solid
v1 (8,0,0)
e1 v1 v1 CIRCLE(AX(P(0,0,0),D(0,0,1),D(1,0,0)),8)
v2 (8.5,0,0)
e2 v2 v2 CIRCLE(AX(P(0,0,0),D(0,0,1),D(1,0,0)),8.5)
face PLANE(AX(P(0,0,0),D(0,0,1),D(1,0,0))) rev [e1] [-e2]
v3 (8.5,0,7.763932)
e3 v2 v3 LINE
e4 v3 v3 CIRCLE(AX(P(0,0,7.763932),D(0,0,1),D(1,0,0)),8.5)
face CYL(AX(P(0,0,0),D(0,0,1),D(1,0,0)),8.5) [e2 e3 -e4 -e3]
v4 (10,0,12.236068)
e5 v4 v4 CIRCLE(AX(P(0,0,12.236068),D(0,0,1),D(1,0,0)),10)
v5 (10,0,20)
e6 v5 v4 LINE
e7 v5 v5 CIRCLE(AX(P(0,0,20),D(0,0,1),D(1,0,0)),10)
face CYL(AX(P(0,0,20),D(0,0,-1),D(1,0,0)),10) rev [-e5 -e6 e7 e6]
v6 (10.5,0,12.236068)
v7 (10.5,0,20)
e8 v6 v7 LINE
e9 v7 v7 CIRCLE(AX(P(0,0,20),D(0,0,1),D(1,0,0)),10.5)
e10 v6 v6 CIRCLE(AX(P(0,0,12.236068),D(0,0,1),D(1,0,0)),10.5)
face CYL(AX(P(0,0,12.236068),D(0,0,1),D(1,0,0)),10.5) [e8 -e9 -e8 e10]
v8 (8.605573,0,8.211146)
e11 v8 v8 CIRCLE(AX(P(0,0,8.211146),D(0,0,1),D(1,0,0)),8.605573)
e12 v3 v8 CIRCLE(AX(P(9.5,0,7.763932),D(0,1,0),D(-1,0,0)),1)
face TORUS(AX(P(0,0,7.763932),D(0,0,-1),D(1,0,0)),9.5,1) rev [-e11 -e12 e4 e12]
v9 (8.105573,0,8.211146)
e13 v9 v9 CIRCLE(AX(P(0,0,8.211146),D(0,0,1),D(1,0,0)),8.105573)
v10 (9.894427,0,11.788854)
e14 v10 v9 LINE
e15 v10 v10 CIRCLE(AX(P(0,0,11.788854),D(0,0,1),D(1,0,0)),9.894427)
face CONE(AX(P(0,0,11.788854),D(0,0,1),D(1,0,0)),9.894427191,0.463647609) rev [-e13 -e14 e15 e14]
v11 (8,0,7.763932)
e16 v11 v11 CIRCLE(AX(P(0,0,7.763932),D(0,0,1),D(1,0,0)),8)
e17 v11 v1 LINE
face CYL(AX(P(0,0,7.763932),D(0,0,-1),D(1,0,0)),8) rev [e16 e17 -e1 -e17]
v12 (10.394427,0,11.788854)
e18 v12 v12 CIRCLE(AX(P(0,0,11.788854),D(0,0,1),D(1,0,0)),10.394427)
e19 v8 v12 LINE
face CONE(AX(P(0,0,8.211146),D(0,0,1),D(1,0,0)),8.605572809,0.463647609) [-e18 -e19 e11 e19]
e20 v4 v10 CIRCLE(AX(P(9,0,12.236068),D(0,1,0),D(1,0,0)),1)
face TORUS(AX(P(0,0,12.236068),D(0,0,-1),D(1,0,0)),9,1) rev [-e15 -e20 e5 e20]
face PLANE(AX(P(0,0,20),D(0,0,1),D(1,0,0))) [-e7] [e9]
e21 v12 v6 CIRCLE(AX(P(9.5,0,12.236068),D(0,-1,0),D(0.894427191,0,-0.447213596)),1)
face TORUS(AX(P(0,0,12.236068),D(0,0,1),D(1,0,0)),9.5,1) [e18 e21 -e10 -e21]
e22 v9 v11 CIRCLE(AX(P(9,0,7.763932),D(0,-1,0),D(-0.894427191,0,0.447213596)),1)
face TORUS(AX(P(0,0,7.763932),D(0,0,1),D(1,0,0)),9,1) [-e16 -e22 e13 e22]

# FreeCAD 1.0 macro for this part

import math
import FreeCAD as App
import Part
import Sketcher
from FreeCAD import Vector
Q = App.Units.Quantity

doc = App.newDocument("Part")
params = doc.addObject("Spreadsheet::Sheet", "Params")
for row, (alias, value) in enumerate([
    ("sketch1_radius", "1 mm"),
    ("sketch1_length", "4 mm"),
    ("sketch1_width", "0.5 mm"),
    ("revolution_angle", "360 deg"),
], start=1):
    params.set(f"A{row}", alias)
    params.set(f"B{row}", "=" + value)
    params.setAlias(f"B{row}", alias)

body = doc.addObject("PartDesign::Body", "Body")

sketch1 = body.newObject("Sketcher::SketchObject", "Sketch")
sketch1.AttachmentSupport = (doc.getObject("XZ_Plane"), [""])
sketch1.MapMode = "FlatFace"
sketch1.addGeometry([
    Part.LineSegment(Vector(8, 7.763932, 0), Vector(8, 0, 0)),
    Part.LineSegment(Vector(8, 0, 0), Vector(8.5, 0, 0)),
    Part.LineSegment(Vector(8.5, 0, 0), Vector(8.5, 7.763932, 0)),
    Part.ArcOfCircle(Part.Circle(Vector(9.5, 7.763932, 0), Vector(0, 0, 1), 1), math.radians(153.434949), math.radians(180)),
    Part.LineSegment(Vector(8.605573, 8.211146, 0), Vector(10.394427, 11.788854, 0)),
    Part.ArcOfCircle(Part.Circle(Vector(9.5, 12.236068, 0), Vector(0, 0, 1), 1), math.radians(-26.565051), math.radians(0)),
    Part.LineSegment(Vector(10.5, 12.236068, 0), Vector(10.5, 20, 0)),
    Part.LineSegment(Vector(10.5, 20, 0), Vector(10, 20, 0)),
    Part.LineSegment(Vector(10, 20, 0), Vector(10, 12.236068, 0)),
    Part.ArcOfCircle(Part.Circle(Vector(9, 12.236068, 0), Vector(0, 0, 1), 1), math.radians(-26.565051), math.radians(0)),
    Part.LineSegment(Vector(9.894427, 11.788854, 0), Vector(8.105573, 8.211146, 0)),
    Part.ArcOfCircle(Part.Circle(Vector(9, 7.763932, 0), Vector(0, 0, 1), 1), math.radians(153.434949), math.radians(180)),
], False)
sketch1.addConstraint([
    Sketcher.Constraint("Coincident", 0, 2, 1, 1),
    Sketcher.Constraint("Coincident", 1, 2, 2, 1),
    Sketcher.Constraint("Tangent", 2, 2, 3, 2),
    Sketcher.Constraint("Tangent", 3, 1, 4, 1),
    Sketcher.Constraint("Tangent", 4, 2, 5, 1),
    Sketcher.Constraint("Tangent", 5, 2, 6, 1),
    Sketcher.Constraint("Coincident", 6, 2, 7, 1),
    Sketcher.Constraint("Coincident", 7, 2, 8, 1),
    Sketcher.Constraint("Tangent", 8, 2, 9, 2),
    Sketcher.Constraint("Tangent", 9, 1, 10, 1),
    Sketcher.Constraint("Tangent", 10, 2, 11, 1),
    Sketcher.Constraint("Tangent", 11, 2, 0, 1),
    Sketcher.Constraint("Vertical", 0),
    Sketcher.Constraint("Horizontal", 1),
    Sketcher.Constraint("Vertical", 2),
    Sketcher.Constraint("Vertical", 6),
    Sketcher.Constraint("Horizontal", 7),
    Sketcher.Constraint("Vertical", 8),
    Sketcher.Constraint("Equal", 3, 5),
    Sketcher.Constraint("Equal", 5, 9),
    Sketcher.Constraint("Equal", 9, 11),
    Sketcher.Constraint("PointOnObject", 0, 2, -1),
    Sketcher.Constraint("Parallel", 4, 10),
    Sketcher.Constraint("Horizontal", 5, 3, 9, 3),
    Sketcher.Constraint("Horizontal", 3, 3, 11, 3),
    Sketcher.Constraint("Vertical", 3, 3, 5, 3),
    Sketcher.Constraint("Equal", 2, 6),
    Sketcher.Constraint("Radius", 3, Q("1 mm")),
    Sketcher.Constraint("Distance", 4, Q("4 mm")),
    Sketcher.Constraint("DistanceX", 1, 1, 1, 2, Q("0.5 mm")),
    Sketcher.Constraint("DistanceX", -1, 1, 9, 3, Q("9 mm")),
    Sketcher.Constraint("DistanceY", -1, 1, 6, 2, Q("20 mm")),
])
sketch1.setExpression("Constraints[27]", "Params.sketch1_radius")
sketch1.setExpression("Constraints[28]", "Params.sketch1_length")
sketch1.setExpression("Constraints[29]", "Params.sketch1_width")
revolution = body.newObject("PartDesign::Revolution", "Revolution")
revolution.Profile = sketch1
revolution.ReferenceAxis = (sketch1, ["V_Axis"])
revolution.setExpression("Angle", "Params.revolution_angle")

doc.recompute()
